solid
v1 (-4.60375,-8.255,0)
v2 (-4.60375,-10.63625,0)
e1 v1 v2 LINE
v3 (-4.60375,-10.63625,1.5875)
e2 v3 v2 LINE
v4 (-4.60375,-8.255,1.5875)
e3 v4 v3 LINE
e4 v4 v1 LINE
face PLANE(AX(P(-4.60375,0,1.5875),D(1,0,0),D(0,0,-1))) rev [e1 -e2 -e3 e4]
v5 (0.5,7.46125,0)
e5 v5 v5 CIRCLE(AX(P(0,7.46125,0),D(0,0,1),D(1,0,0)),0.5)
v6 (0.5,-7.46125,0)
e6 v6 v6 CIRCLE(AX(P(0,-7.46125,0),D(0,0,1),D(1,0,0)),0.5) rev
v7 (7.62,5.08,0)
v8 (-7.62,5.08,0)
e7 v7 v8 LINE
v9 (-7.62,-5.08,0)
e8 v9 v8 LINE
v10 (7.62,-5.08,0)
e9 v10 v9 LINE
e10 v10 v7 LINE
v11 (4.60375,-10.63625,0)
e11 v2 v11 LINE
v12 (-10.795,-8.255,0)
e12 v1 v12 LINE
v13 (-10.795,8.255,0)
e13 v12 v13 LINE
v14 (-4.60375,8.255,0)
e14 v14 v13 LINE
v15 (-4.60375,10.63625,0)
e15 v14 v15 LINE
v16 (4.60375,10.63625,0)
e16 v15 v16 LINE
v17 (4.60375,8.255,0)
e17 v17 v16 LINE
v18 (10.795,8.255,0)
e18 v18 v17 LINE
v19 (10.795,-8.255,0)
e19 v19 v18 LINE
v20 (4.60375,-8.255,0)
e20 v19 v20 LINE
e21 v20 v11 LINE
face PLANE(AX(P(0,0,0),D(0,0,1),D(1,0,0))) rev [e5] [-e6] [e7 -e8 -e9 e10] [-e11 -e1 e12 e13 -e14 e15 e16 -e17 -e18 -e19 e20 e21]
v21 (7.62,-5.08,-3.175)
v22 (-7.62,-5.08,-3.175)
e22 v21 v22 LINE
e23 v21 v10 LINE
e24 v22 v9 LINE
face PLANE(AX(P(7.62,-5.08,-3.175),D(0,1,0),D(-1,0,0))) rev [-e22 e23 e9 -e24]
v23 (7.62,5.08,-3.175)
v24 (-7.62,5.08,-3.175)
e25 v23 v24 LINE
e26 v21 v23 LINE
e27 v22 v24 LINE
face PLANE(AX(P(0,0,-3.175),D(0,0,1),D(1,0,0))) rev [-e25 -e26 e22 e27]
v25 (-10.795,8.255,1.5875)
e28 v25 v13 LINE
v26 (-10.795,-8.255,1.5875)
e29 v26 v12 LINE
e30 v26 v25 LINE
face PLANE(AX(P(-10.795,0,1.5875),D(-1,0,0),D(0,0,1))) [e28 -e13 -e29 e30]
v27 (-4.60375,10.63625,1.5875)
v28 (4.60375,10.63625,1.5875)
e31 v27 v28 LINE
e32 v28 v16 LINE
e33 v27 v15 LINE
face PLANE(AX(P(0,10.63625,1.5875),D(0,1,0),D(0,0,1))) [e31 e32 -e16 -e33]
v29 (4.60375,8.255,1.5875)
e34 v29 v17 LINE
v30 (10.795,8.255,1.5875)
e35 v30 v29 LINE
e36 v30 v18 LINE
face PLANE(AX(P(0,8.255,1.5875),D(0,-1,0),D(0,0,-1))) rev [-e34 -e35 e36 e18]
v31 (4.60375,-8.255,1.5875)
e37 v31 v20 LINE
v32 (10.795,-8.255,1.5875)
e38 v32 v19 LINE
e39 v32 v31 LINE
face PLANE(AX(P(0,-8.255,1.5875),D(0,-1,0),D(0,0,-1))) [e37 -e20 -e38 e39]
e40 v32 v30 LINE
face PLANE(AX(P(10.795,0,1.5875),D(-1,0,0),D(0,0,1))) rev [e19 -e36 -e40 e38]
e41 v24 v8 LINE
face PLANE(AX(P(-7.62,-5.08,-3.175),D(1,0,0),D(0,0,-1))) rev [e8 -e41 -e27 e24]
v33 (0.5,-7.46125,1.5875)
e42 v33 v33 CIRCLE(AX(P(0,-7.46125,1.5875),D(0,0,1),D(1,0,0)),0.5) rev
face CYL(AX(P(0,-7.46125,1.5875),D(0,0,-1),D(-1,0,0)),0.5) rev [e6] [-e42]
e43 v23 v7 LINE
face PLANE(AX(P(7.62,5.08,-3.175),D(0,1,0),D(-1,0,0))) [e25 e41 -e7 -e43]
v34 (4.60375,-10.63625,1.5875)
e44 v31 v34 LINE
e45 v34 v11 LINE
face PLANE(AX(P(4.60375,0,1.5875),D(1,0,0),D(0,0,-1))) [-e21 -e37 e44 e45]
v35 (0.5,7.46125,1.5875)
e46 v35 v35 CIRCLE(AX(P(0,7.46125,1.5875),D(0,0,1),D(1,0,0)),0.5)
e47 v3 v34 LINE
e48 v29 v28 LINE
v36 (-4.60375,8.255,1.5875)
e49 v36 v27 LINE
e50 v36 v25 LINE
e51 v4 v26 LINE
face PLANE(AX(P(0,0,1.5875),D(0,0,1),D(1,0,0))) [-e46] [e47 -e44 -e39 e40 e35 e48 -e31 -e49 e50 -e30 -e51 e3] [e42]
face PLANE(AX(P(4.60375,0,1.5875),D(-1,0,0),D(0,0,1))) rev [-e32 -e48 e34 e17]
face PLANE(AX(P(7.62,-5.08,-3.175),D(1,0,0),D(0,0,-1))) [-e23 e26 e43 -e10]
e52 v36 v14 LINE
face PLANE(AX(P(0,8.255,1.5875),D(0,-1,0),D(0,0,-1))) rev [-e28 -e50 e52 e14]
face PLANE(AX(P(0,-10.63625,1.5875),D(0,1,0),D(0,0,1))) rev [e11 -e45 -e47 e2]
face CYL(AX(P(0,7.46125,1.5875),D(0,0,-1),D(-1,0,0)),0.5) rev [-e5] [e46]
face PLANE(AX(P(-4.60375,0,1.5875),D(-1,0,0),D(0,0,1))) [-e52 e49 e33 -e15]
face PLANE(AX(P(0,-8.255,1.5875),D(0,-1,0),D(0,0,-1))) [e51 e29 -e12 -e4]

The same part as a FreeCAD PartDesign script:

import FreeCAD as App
import Part
import Sketcher
Q = App.Units.Quantity


def add_polygon(sketch, points):
    """Adds a closed chain of lines whose ends are joined by coincident constraints."""
    first, n = sketch.GeometryCount, len(points)
    for a, b in zip(points, points[1:] + points[:1]):
        sketch.addGeometry(Part.LineSegment(App.Vector(*a, 0), App.Vector(*b, 0)), False)
    for i in range(n):
        sketch.addConstraint(Sketcher.Constraint("Coincident", first + i, 2, first + (i + 1) % n, 1))

doc = App.newDocument("Part")
body = doc.addObject("PartDesign::Body", "Body")

sketch1 = doc.addObject("Sketcher::SketchObject", "Sketch")
body.addObject(sketch1)
sketch1.AttachmentSupport = (doc.XY_Plane, [""])
sketch1.MapMode = "FlatFace"
add_polygon(sketch1, [(-10.8, 8.3), (-10.8, -8.3), (-4.6, -8.3), (-4.6, -10.6), (4.6, -10.6), (4.6, -8.3), (10.8, -8.3), (10.8, 8.3), (4.6, 8.3), (4.6, 10.6), (-4.6, 10.6), (-4.6, 8.3)])
sketch1.addGeometry(Part.Circle(App.Vector(0, -7.5, 0), App.Vector(0, 0, 1), 0.5), False)
sketch1.addGeometry(Part.Circle(App.Vector(0, 7.5, 0), App.Vector(0, 0, 1), 0.5), False)
sketch1.addConstraint([
    Sketcher.Constraint("Vertical", 0),
    Sketcher.Constraint("Horizontal", 1),
    Sketcher.Constraint("Vertical", 2),
    Sketcher.Constraint("Horizontal", 3),
    Sketcher.Constraint("Vertical", 4),
    Sketcher.Constraint("Horizontal", 5),
    Sketcher.Constraint("Vertical", 6),
    Sketcher.Constraint("Horizontal", 7),
    Sketcher.Constraint("Vertical", 8),
    Sketcher.Constraint("Horizontal", 9),
    Sketcher.Constraint("Vertical", 10),
    Sketcher.Constraint("Horizontal", 11),
    Sketcher.Constraint("Equal", 12, 13),
    Sketcher.Constraint("Symmetric", 12, 3, 13, 3, -1, 1),
    Sketcher.Constraint("Symmetric", 0, 2, 6, 2, -1, 1),
    Sketcher.Constraint("Symmetric", 2, 2, 8, 2, -1, 1),
    Sketcher.Constraint("Symmetric", 4, 2, 10, 2, -1, 1),
    Sketcher.Constraint("Symmetric", 1, 2, 4, 2, -2),
    Sketcher.Constraint("PointOnObject", 12, 3, -2),
    Sketcher.Constraint("DistanceY", 0, 2, 0, 1, Q("0.65 in")),
    Sketcher.Constraint("Diameter", 12, 1.0),
    Sketcher.Constraint("DistanceY", 2, 2, 2, 1, Q("0.09375 in")),
    Sketcher.Constraint("DistanceX", 3, 1, 3, 2, Q("0.3625 in")),
    Sketcher.Constraint("DistanceX", 0, 2, -1, 1, Q("0.425 in")),
    Sketcher.Constraint("DistanceY", 0, 2, 12, 3, Q("0.03125 in")),
])
pad1 = doc.addObject("PartDesign::Pad", "Pad")
body.addObject(pad1)
pad1.Profile = sketch1
pad1.Length = Q("0.0625 in")

sketch2 = doc.addObject("Sketcher::SketchObject", "Sketch001")
body.addObject(sketch2)
sketch2.AttachmentSupport = (doc.XY_Plane, [""])
sketch2.MapMode = "FlatFace"
add_polygon(sketch2, [(-8, 5), (-8, -5), (8, -5), (8, 5)])
sketch2.addConstraint([
    Sketcher.Constraint("Vertical", 0),
    Sketcher.Constraint("Horizontal", 1),
    Sketcher.Constraint("Vertical", 2),
    Sketcher.Constraint("Horizontal", 3),
    Sketcher.Constraint("Symmetric", 0, 2, 2, 2, -1, 1),
    Sketcher.Constraint("DistanceX", 1, 1, 1, 2, Q("0.6 in")),
    Sketcher.Constraint("DistanceY", 0, 2, 0, 1, Q("0.4 in")),
])
pad2 = doc.addObject("PartDesign::Pad", "Pad001")
body.addObject(pad2)
pad2.Profile = sketch2
pad2.Length = Q("0.125 in")
pad2.Reversed = True

doc.recompute()
